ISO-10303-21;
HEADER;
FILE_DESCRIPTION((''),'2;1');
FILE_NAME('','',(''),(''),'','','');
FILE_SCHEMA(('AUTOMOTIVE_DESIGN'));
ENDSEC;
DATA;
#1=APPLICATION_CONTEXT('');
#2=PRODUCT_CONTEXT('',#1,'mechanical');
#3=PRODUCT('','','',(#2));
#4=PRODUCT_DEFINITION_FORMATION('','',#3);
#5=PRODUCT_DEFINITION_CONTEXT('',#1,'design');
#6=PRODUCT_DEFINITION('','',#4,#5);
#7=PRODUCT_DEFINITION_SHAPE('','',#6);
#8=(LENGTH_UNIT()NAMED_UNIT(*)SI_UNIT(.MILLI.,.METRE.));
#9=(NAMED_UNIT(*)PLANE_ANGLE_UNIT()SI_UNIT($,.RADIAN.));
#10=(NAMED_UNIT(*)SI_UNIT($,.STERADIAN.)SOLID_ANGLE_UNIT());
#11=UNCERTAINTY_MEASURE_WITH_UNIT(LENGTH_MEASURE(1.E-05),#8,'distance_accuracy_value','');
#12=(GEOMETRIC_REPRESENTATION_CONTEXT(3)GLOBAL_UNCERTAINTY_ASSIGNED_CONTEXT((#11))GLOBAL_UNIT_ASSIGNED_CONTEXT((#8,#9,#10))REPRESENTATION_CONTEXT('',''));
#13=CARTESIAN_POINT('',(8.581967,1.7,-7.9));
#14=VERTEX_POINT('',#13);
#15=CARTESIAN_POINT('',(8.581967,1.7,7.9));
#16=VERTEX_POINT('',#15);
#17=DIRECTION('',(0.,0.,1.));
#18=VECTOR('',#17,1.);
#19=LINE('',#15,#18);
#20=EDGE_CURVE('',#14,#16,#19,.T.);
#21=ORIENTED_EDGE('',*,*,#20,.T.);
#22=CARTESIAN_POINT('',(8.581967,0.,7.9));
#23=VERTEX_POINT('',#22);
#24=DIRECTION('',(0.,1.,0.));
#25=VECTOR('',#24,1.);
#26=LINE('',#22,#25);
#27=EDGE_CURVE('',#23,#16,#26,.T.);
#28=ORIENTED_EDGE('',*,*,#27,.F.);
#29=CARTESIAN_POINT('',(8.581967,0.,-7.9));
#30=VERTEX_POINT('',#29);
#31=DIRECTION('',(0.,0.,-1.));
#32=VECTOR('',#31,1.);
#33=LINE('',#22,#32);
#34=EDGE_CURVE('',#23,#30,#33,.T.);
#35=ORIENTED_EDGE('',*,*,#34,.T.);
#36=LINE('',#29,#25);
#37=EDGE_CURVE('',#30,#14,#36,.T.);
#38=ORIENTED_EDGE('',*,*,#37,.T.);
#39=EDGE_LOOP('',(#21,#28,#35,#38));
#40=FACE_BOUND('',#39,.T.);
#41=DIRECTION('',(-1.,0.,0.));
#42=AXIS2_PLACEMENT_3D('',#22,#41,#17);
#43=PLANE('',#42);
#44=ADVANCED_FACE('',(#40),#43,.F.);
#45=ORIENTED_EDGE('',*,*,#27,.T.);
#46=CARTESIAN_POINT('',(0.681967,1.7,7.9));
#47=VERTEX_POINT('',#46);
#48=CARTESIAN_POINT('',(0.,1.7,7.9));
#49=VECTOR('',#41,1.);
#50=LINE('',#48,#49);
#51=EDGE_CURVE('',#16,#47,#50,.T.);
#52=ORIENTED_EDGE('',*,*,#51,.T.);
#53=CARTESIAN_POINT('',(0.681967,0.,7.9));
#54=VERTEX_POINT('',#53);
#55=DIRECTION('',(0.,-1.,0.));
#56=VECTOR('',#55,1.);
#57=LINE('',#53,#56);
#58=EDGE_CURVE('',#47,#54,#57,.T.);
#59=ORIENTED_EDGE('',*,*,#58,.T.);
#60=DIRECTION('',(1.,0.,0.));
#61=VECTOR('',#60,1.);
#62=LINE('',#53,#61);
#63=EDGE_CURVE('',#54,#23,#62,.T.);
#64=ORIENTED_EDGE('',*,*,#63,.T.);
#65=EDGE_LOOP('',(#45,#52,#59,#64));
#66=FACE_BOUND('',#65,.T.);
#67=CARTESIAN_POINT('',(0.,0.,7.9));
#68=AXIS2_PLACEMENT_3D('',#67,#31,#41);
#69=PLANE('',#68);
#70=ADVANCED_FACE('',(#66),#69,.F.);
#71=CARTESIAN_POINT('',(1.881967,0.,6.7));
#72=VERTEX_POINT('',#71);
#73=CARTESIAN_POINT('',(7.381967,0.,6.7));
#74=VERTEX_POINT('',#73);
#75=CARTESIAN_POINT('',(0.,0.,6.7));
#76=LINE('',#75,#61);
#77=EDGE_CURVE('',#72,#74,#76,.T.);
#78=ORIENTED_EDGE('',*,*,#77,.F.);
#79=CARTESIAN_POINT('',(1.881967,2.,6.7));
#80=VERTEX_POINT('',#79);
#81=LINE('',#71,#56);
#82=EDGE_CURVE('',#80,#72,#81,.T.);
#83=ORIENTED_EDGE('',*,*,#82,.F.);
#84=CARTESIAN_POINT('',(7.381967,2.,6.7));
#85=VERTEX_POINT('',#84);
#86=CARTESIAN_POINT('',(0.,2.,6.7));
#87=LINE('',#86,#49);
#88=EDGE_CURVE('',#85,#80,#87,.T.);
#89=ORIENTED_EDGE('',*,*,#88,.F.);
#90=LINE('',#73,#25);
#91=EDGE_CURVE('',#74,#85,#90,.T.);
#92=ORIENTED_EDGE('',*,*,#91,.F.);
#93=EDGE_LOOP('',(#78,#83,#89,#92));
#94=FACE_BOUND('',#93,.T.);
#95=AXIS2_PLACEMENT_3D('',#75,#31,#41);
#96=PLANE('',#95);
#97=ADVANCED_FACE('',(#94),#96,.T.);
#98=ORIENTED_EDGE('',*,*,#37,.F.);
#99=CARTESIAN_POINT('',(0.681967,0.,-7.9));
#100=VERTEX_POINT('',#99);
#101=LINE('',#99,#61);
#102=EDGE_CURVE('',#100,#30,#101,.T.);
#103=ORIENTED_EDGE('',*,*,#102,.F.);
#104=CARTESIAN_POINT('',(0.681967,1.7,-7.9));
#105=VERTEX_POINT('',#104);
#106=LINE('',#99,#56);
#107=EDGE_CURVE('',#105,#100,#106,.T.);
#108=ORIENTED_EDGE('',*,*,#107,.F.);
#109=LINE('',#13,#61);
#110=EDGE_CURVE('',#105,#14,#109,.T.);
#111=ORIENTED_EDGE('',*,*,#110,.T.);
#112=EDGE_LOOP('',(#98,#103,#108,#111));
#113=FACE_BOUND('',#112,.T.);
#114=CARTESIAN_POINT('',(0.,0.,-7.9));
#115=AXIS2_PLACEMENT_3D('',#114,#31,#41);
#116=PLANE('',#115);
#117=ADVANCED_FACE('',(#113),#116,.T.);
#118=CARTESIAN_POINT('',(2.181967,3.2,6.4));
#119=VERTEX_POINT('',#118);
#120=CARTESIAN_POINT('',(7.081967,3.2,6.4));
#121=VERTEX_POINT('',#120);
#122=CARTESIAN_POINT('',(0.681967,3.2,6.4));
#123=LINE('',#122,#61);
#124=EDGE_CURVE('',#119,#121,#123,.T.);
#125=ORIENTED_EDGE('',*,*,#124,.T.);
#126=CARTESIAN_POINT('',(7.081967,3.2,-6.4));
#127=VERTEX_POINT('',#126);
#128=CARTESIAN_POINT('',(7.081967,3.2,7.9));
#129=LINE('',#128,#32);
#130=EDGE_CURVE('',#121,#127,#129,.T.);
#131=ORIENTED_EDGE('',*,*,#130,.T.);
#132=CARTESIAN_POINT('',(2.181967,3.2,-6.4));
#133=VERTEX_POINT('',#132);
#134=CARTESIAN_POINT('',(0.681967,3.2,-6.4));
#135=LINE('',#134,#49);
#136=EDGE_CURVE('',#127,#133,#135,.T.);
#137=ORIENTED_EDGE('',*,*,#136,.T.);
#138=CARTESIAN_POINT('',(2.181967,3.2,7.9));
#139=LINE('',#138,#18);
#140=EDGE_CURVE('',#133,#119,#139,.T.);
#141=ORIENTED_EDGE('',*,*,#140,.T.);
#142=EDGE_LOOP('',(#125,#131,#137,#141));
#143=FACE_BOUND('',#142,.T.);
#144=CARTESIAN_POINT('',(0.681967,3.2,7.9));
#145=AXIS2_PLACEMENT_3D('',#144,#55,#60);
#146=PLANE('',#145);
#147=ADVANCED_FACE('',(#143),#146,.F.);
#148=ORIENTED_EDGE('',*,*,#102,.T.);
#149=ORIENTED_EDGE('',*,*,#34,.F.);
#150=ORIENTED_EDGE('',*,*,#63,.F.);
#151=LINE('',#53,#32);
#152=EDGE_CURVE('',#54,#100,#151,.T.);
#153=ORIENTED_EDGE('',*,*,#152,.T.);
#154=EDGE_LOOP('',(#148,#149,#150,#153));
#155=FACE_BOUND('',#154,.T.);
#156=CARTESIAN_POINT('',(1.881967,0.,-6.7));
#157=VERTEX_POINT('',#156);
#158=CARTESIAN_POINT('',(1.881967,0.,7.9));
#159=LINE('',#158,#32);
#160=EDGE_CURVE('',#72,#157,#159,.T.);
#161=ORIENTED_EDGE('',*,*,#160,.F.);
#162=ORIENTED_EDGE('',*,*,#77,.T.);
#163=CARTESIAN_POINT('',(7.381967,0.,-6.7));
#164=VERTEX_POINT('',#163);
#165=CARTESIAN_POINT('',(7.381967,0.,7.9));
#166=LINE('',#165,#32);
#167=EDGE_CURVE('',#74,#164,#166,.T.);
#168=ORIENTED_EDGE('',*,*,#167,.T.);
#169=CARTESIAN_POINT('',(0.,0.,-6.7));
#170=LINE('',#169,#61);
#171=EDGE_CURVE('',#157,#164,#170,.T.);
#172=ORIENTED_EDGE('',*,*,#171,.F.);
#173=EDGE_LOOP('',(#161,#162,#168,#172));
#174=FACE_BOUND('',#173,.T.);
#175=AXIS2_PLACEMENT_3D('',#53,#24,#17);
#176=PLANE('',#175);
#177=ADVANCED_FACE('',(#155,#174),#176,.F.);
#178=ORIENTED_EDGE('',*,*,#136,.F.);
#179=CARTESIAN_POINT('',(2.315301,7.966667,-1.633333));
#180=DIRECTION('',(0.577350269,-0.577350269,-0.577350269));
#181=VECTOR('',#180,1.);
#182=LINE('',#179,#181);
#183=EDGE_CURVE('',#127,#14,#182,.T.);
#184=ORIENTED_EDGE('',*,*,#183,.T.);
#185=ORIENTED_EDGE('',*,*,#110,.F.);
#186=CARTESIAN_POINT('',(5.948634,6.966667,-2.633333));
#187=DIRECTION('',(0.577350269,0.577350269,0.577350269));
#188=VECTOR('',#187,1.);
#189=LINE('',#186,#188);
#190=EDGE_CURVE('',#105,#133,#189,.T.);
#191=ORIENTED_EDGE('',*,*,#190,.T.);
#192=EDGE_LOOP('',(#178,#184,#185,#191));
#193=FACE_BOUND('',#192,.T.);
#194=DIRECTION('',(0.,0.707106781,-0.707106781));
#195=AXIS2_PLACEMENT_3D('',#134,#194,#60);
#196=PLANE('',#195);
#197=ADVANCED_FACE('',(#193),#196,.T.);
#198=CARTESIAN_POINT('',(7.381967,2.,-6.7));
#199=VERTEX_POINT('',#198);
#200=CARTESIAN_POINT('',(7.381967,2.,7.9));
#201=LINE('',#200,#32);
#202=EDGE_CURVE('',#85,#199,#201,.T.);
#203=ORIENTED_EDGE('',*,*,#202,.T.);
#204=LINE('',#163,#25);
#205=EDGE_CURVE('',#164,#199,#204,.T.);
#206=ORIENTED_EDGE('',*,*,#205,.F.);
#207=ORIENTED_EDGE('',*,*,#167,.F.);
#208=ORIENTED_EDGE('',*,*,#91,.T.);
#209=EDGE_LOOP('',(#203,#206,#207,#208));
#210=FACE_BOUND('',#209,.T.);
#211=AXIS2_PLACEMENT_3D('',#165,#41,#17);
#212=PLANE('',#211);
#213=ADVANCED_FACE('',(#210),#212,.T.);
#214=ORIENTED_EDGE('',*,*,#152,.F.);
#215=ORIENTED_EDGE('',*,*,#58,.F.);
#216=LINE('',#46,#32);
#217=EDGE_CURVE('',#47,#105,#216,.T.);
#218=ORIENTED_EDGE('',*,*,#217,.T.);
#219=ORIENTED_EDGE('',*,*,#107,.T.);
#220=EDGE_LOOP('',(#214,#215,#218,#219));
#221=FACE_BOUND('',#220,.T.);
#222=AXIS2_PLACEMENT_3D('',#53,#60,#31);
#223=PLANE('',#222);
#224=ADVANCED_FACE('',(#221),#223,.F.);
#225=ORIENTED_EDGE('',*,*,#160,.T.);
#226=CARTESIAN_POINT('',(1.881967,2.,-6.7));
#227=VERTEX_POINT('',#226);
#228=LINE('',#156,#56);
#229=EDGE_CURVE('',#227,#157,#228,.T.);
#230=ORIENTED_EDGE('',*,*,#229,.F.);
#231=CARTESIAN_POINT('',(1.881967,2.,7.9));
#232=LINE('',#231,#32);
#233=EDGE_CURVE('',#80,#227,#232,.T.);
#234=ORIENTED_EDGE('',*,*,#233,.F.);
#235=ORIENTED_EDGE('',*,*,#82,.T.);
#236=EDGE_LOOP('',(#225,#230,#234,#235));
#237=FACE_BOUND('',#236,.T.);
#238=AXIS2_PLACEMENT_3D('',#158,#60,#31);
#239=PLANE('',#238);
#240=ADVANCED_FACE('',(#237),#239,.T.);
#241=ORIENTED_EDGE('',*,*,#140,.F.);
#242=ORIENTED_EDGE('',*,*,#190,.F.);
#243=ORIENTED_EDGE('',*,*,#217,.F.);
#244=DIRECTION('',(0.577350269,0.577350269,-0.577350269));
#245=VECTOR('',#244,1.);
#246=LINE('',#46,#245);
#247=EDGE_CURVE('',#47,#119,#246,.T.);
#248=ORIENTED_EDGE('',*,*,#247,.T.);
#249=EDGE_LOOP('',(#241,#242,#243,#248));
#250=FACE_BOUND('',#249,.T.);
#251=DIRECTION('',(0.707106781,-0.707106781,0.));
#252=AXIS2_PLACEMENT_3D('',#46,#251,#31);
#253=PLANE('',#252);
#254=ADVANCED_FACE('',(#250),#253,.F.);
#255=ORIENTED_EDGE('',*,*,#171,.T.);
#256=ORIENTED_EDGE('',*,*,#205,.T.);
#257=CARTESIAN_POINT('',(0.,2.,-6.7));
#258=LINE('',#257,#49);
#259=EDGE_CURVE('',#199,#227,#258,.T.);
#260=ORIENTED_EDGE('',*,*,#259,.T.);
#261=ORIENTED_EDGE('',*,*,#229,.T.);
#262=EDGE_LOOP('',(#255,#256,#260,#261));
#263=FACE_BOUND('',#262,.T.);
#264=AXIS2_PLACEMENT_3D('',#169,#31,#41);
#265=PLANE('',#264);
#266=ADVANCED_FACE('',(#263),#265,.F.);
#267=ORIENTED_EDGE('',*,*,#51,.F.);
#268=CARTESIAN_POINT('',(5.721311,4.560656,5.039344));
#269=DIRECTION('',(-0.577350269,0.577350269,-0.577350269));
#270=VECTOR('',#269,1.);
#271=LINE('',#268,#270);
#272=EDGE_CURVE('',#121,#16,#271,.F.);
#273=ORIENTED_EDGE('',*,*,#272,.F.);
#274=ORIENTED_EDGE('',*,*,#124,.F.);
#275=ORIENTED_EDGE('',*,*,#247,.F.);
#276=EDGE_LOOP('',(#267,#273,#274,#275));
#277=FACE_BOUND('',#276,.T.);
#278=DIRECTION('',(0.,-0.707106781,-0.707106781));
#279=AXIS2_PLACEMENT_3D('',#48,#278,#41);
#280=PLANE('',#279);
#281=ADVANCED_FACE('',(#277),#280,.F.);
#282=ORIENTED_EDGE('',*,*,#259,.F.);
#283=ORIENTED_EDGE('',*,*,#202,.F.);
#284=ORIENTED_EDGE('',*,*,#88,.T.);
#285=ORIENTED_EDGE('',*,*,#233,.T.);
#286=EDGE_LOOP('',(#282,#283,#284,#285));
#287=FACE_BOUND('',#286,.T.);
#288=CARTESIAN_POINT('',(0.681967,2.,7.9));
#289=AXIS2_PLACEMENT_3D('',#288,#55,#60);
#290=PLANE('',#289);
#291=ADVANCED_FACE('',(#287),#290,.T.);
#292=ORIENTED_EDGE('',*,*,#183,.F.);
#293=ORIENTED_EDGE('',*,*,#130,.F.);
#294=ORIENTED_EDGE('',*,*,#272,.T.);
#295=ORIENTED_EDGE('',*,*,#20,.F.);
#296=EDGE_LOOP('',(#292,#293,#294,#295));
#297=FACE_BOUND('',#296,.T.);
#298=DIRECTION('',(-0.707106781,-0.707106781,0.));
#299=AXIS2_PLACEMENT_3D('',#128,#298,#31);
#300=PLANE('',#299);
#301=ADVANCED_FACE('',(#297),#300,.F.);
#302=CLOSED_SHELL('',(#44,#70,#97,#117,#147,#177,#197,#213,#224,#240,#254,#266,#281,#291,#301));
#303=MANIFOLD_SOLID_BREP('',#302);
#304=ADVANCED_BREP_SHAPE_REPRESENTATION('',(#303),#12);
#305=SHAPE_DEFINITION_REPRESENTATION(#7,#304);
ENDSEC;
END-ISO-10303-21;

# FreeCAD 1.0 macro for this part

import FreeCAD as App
import Part
import Sketcher


def edges_at(feature, points):
    """Names of the edges that pass closest to the given points."""
    edges = feature.Shape.Edges
    near = lambda p: min(range(len(edges)), key=lambda i: edges[i].distToShape(Part.Vertex(*p))[0])
    return sorted({f"Edge{near(p) + 1}" for p in points})


def faces_at(feature, points):
    """Names of the faces that lie closest to the given points."""
    faces = feature.Shape.Faces
    near = lambda p: min(range(len(faces)), key=lambda i: faces[i].distToShape(Part.Vertex(*p))[0])
    return sorted({f"Face{near(p) + 1}" for p in points})

doc = App.newDocument("Part")
body = doc.addObject("PartDesign::Body", "Body")

# Sketch on XY plane
sketch1 = body.newObject("Sketcher::SketchObject", "Sketch")
sketch1.AttachmentSupport = (doc.getObject("XY_Plane"), [""])
sketch1.MapMode = "FlatFace"
sketch1.addGeometry([
    Part.LineSegment(App.Vector(0.681967, 3.2, 0), App.Vector(0.681967, 0, 0)),
    Part.LineSegment(App.Vector(0.681967, 0, 0), App.Vector(8.581967, 0, 0)),
    Part.LineSegment(App.Vector(8.581967, 0, 0), App.Vector(8.581967, 3.2, 0)),
    Part.LineSegment(App.Vector(8.581967, 3.2, 0), App.Vector(0.681967, 3.2, 0)),
], False)
sketch1.addConstraint([
    Sketcher.Constraint("Coincident", 0, 2, 1, 1),
    Sketcher.Constraint("Coincident", 1, 2, 2, 1),
    Sketcher.Constraint("Coincident", 2, 2, 3, 1),
    Sketcher.Constraint("Coincident", 3, 2, 0, 1),
    Sketcher.Constraint("Vertical", 0),
    Sketcher.Constraint("Horizontal", 1),
    Sketcher.Constraint("Vertical", 2),
    Sketcher.Constraint("Horizontal", 3),
    Sketcher.Constraint("PointOnObject", 0, 2, -1),
    Sketcher.Constraint("DistanceX", 1, 1, 1, 2, 7.9),
    Sketcher.Constraint("DistanceY", 0, 2, 0, 1, 3.2),
    Sketcher.Constraint("DistanceX", -1, 1, 0, 2, 0.681967),
])
pad1 = body.newObject("PartDesign::Pad", "Pad")
pad1.Profile = sketch1
pad1.Length = 15.8
pad1.Midplane = True
doc.recompute()

thickness = body.newObject("PartDesign::Thickness", "Thickness")
thickness.Base = (pad1, faces_at(pad1, [(4.632, 0, 0)]))
thickness.Value = 1.2
thickness.Reversed = True
thickness.Join = "Intersection"
doc.recompute()

chamfer = body.newObject("PartDesign::Chamfer", "Chamfer")
chamfer.Base = (thickness, edges_at(thickness, [
    (4.632, 3.2, 7.9),
    (4.632, 3.2, -7.9),
    (0.682, 3.2, 0),
    (8.582, 3.2, 0),
]))
chamfer.Size = 1.5

doc.recompute()
